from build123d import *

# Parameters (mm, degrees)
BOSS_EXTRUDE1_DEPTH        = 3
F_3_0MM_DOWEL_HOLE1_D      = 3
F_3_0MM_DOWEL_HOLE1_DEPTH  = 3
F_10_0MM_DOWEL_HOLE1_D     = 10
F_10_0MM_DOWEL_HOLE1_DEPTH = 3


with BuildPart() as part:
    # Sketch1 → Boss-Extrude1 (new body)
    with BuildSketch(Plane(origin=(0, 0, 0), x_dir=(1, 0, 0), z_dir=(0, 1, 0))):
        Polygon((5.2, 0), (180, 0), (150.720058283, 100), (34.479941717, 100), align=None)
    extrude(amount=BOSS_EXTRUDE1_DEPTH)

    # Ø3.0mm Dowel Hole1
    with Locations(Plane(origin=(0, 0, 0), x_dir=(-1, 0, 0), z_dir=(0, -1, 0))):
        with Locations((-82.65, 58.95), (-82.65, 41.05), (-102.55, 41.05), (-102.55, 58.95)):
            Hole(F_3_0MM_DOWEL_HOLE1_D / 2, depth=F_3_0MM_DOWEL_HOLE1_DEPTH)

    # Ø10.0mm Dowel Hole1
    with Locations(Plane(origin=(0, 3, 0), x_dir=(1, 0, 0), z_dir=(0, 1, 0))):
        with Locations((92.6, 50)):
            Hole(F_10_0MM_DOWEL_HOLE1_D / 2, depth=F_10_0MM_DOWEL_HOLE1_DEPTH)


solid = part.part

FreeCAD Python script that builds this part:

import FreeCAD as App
import Part
import Sketcher

V = App.Vector
Q = App.Units.Quantity

doc = App.newDocument("Part")
body = doc.addObject("PartDesign::Body", "Body")

# Sketch on XZ plane
sketch1 = body.newObject("Sketcher::SketchObject", "Sketch")
sketch1.AttachmentSupport = (doc.getObject("XZ_Plane"), [""])
sketch1.MapMode = "FlatFace"
sketch1.addGeometry([
    Part.LineSegment(V(5, 0, 0), V(180, 0, 0)),
    Part.LineSegment(V(180, 0, 0), V(151, -100, 0)),
    Part.LineSegment(V(151, -100, 0), V(34, -100, 0)),
    Part.LineSegment(V(34, -100, 0), V(5, 0, 0)),
], False)
sketch1.addConstraint([
    Sketcher.Constraint("Coincident", 0, 2, 1, 1),
    Sketcher.Constraint("Coincident", 1, 2, 2, 1),
    Sketcher.Constraint("Coincident", 2, 2, 3, 1),
    Sketcher.Constraint("Coincident", 3, 2, 0, 1),
    Sketcher.Constraint("Horizontal", 0),
    Sketcher.Constraint("Horizontal", 2),
    Sketcher.Constraint("PointOnObject", 0, 2, -1),
    Sketcher.Constraint("Equal", 1, 3),
    Sketcher.Constraint("DistanceX", 0, 1, 0, 2, Q("174.8 mm")),
    Sketcher.Constraint("DistanceX", -1, 1, 0, 2, Q("180 mm")),
    Sketcher.Constraint("DistanceY", 1, 2, -1, 1, Q("100 mm")),
    Sketcher.Constraint("Angle", 1, Q("-106.32 deg")),
])
pad1 = body.newObject("PartDesign::Pad", "Pad")
pad1.Profile = sketch1
pad1.Length = 3
pad1.Reversed = True

# Sketch on XZ plane
sketch2 = body.newObject("Sketcher::SketchObject", "Sketch001")
sketch2.AttachmentSupport = (doc.getObject("XZ_Plane"), [""])
sketch2.MapMode = "FlatFace"
sketch2.addGeometry([
    Part.Circle(V(82.7, -59, 0), V(0, 0, 1), 1.5),
    Part.Circle(V(82.7, -41, 0), V(0, 0, 1), 1.5),
    Part.Circle(V(102.5, -41, 0), V(0, 0, 1), 1.5),
    Part.Circle(V(102.5, -59, 0), V(0, 0, 1), 1.5),
], False)
sketch2.addConstraint([
    Sketcher.Constraint("Equal", 0, 1),
    Sketcher.Constraint("Equal", 1, 2),
    Sketcher.Constraint("Equal", 2, 3),
    Sketcher.Constraint("Horizontal", 1, 3, 2, 3),
    Sketcher.Constraint("Horizontal", 0, 3, 3, 3),
    Sketcher.Constraint("Vertical", 0, 3, 1, 3),
    Sketcher.Constraint("Vertical", 2, 3, 3, 3),
    Sketcher.Constraint("Diameter", 0, Q("3 mm")),
    Sketcher.Constraint("DistanceY", 0, 3, 1, 3, Q("17.9 mm")),
    Sketcher.Constraint("DistanceX", 1, 3, 2, 3, Q("19.9 mm")),
    Sketcher.Constraint("DistanceX", -1, 1, 0, 3, Q("82.65 mm")),
    Sketcher.Constraint("DistanceY", 0, 3, -1, 1, Q("58.95 mm")),
])
doc.recompute()
hole = body.newObject("PartDesign::Hole", "Hole")
hole.Profile = sketch2
hole.ThreadType = "None"
hole.Diameter = 3
hole.DepthType = "Dimension"
hole.Depth = 3
hole.DrillPoint = "Flat"

# Sketch on XZ plane
sketch3 = body.newObject("Sketcher::SketchObject", "Sketch002")
sketch3.AttachmentSupport = (doc.getObject("XZ_Plane"), [""])
sketch3.MapMode = "FlatFace"
sketch3.AttachmentOffset = App.Placement(V(0, 0, -3), App.Rotation())
sketch3.addGeometry(Part.Circle(V(93, -50, 0), V(0, 0, 1), 5), False)
sketch3.addConstraint([
    Sketcher.Constraint("Diameter", 0, Q("10 mm")),
    Sketcher.Constraint("DistanceY", 0, 3, -1, 1, Q("50 mm")),
    Sketcher.Constraint("DistanceX", -1, 1, 0, 3, Q("92.6 mm")),
])
doc.recompute()
hole2 = body.newObject("PartDesign::Hole", "Hole001")
hole2.Profile = sketch3
hole2.ThreadType = "None"
hole2.Diameter = 10
hole2.DepthType = "Dimension"
hole2.Depth = 3
hole2.DrillPoint = "Flat"
hole2.Reversed = True

doc.recompute()
